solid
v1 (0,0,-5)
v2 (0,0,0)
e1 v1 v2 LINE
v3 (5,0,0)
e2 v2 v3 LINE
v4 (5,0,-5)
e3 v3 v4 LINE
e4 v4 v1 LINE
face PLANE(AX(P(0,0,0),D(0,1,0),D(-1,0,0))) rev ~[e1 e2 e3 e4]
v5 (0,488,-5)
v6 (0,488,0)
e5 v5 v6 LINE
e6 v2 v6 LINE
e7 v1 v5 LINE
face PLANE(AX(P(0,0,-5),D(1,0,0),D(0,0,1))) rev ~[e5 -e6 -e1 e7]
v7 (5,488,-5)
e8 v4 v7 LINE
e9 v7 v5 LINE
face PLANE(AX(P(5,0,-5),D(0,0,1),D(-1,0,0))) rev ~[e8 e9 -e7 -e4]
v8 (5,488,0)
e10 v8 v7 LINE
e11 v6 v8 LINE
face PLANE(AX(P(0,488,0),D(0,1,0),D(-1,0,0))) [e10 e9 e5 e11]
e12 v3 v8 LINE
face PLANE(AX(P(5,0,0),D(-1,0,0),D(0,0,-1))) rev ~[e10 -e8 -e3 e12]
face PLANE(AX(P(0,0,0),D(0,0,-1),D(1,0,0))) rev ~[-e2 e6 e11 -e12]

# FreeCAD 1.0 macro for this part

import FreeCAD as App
import Part
import Sketcher
Q = App.Units.Quantity

doc = App.newDocument("Part")
body = doc.addObject("PartDesign::Body", "Body")

sketch1 = doc.addObject("Sketcher::SketchObject", "Sketch")
body.addObject(sketch1)
sketch1.AttachmentSupport = (doc.XZ_Plane, [""])
sketch1.MapMode = "FlatFace"
sketch1.addGeometry([
    Part.LineSegment(App.Vector(0, -5, 0), App.Vector(0, 0, 0)),
    Part.LineSegment(App.Vector(0, 0, 0), App.Vector(5, 0, 0)),
    Part.LineSegment(App.Vector(5, 0, 0), App.Vector(5, -5, 0)),
    Part.LineSegment(App.Vector(5, -5, 0), App.Vector(0, -5, 0)),
], False)
sketch1.addConstraint([
    Sketcher.Constraint("Coincident", 0, 2, 1, 1),
    Sketcher.Constraint("Coincident", 1, 2, 2, 1),
    Sketcher.Constraint("Coincident", 2, 2, 3, 1),
    Sketcher.Constraint("Coincident", 3, 2, 0, 1),
    Sketcher.Constraint("Vertical", 0),
    Sketcher.Constraint("Horizontal", 1),
    Sketcher.Constraint("Vertical", 2),
    Sketcher.Constraint("Horizontal", 3),
    Sketcher.Constraint("Coincident", 0, 2, -1, 1),
    Sketcher.Constraint("Equal", 3, 0),
    Sketcher.Constraint("DistanceX", 1, 1, 1, 2, Q("5 mm")),
])
pad1 = doc.addObject("PartDesign::Pad", "Pad")
body.addObject(pad1)
pad1.Profile = sketch1
pad1.Length = 488
pad1.Reversed = True

doc.recompute()
